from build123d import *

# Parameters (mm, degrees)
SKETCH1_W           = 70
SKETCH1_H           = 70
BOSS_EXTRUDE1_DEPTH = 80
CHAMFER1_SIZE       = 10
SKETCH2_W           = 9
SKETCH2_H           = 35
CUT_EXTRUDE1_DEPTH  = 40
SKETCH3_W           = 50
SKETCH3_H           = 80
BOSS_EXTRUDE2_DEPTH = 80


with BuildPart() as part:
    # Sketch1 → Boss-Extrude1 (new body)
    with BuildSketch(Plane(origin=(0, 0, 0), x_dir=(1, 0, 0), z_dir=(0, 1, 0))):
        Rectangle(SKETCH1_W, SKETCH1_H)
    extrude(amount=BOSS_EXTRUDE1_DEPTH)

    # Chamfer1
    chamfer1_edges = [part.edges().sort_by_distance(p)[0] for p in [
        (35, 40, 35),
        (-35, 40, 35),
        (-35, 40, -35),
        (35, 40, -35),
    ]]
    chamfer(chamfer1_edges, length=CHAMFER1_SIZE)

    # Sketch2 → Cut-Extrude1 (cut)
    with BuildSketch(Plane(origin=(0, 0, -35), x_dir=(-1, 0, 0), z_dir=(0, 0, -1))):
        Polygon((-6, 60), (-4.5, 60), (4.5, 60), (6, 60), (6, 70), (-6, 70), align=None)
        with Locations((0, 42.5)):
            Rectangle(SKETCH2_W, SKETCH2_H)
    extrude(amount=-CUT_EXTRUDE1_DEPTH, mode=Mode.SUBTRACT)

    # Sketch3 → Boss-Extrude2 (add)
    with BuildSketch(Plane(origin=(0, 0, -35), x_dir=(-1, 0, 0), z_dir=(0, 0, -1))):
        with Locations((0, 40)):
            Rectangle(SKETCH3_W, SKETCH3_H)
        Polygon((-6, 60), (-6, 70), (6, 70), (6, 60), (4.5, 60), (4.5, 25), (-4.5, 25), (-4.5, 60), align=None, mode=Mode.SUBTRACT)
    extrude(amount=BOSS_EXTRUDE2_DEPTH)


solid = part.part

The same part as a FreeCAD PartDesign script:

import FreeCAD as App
import Part
import Sketcher
from FreeCAD import Vector
Q = App.Units.Quantity


def edges_at(feature, points):
    """Names of the edges that pass closest to the given points."""
    edges = feature.Shape.Edges
    near = lambda p: min(range(len(edges)), key=lambda i: edges[i].distToShape(Part.Vertex(*p))[0])
    return sorted({f"Edge{near(p) + 1}" for p in points})


def add_polygon(sketch, points):
    """Adds a closed chain of lines whose ends are joined by coincident constraints."""
    first, n = sketch.GeometryCount, len(points)
    for a, b in zip(points, points[1:] + points[:1]):
        sketch.addGeometry(Part.LineSegment(App.Vector(*a, 0), App.Vector(*b, 0)), False)
    for i in range(n):
        sketch.addConstraint(Sketcher.Constraint("Coincident", first + i, 2, first + (i + 1) % n, 1))

doc = App.newDocument("Part")
body = doc.addObject("PartDesign::Body", "Body")

# Sketch on XZ plane
sketch1 = doc.addObject("Sketcher::SketchObject", "Sketch")
body.addObject(sketch1)
sketch1.AttachmentSupport = (doc.XZ_Plane, [""])
sketch1.MapMode = "FlatFace"
add_polygon(sketch1, [(-35, -35), (-35, 35), (35, 35), (35, -35)])  # lines 0-3
sketch1.addConstraint([
    Sketcher.Constraint("Vertical", 0),
    Sketcher.Constraint("Horizontal", 1),
    Sketcher.Constraint("Vertical", 2),
    Sketcher.Constraint("Horizontal", 3),
    Sketcher.Constraint("Symmetric", 0, 2, 2, 2, -1, 1),
    Sketcher.Constraint("Equal", 3, 0),
    Sketcher.Constraint("DistanceX", 1, 1, 1, 2, Q("70 mm")),
])
pad1 = doc.addObject("PartDesign::Pad", "Pad")
body.addObject(pad1)
pad1.Profile = sketch1
pad1.Length = 80
pad1.Reversed = True
doc.recompute()

chamfer = doc.addObject("PartDesign::Chamfer", "Chamfer")
body.addObject(chamfer)
chamfer.Base = (pad1, edges_at(pad1, [
    (35, 40, 35),
    (-35, 40, 35),
    (-35, 40, -35),
    (35, 40, -35),
]))
chamfer.Size = 10

# Sketch on XY plane
sketch2 = doc.addObject("Sketcher::SketchObject", "Sketch001")
body.addObject(sketch2)
sketch2.AttachmentSupport = (doc.XY_Plane, [""])
sketch2.MapMode = "FlatFace"
sketch2.AttachmentOffset = App.Placement(Vector(0, 0, -35), App.Rotation())
add_polygon(sketch2, [(6, 60), (4.5, 60), (4.5, 25), (-4.5, 25), (-4.5, 60), (-6, 60), (-6, 70), (6, 70)])  # lines 0-7
sketch2.addConstraint([
    Sketcher.Constraint("Horizontal", 0),
    Sketcher.Constraint("Vertical", 1),
    Sketcher.Constraint("Horizontal", 2),
    Sketcher.Constraint("Vertical", 3),
    Sketcher.Constraint("Horizontal", 4),
    Sketcher.Constraint("Vertical", 5),
    Sketcher.Constraint("Horizontal", 6),
    Sketcher.Constraint("Vertical", 7),
    Sketcher.Constraint("Symmetric", 0, 2, 3, 2, -2),
    Sketcher.Constraint("Equal", 0, 4),
    Sketcher.Constraint("DistanceX", 2, 2, 2, 1, Q("9 mm")),
    Sketcher.Constraint("DistanceX", 6, 1, 6, 2, Q("12 mm")),
    Sketcher.Constraint("DistanceY", 1, 2, 1, 1, Q("35 mm")),
    Sketcher.Constraint("DistanceY", 5, 1, 5, 2, Q("10 mm")),
    Sketcher.Constraint("DistanceY", -1, 1, 0, 2, Q("60 mm")),
])
pocket1 = doc.addObject("PartDesign::Pocket", "Pocket")
body.addObject(pocket1)
pocket1.Profile = sketch2
pocket1.Length = 40
pocket1.Reversed = True

# Sketch on XY plane
sketch3 = doc.addObject("Sketcher::SketchObject", "Sketch002")
body.addObject(sketch3)
sketch3.AttachmentSupport = (doc.XY_Plane, [""])
sketch3.MapMode = "FlatFace"
sketch3.AttachmentOffset = App.Placement(Vector(0, 0, -35), App.Rotation())
add_polygon(sketch3, [(25, 80), (25, 0), (-25, 0), (-25, 80)])  # lines 0-3
add_polygon(sketch3, [(4.5, 60), (6, 60), (6, 70), (-6, 70), (-6, 60), (-4.5, 60), (-4.5, 25), (4.5, 25)])  # lines 4-11
sketch3.addConstraint([
    Sketcher.Constraint("Vertical", 0),
    Sketcher.Constraint("Horizontal", 1),
    Sketcher.Constraint("Vertical", 2),
    Sketcher.Constraint("Horizontal", 3),
    Sketcher.Constraint("Horizontal", 4),
    Sketcher.Constraint("Vertical", 5),
    Sketcher.Constraint("Horizontal", 6),
    Sketcher.Constraint("Vertical", 7),
    Sketcher.Constraint("Horizontal", 8),
    Sketcher.Constraint("Vertical", 9),
    Sketcher.Constraint("Horizontal", 10),
    Sketcher.Constraint("Vertical", 11),
    Sketcher.Constraint("Symmetric", 0, 2, 1, 2, -1, 1),
    Sketcher.Constraint("Symmetric", 4, 2, 7, 2, -2),
    Sketcher.Constraint("Equal", 4, 8),
    Sketcher.Constraint("DistanceX", 1, 2, 1, 1, Q("50 mm")),
    Sketcher.Constraint("DistanceX", 6, 2, 6, 1, Q("12 mm")),
    Sketcher.Constraint("DistanceX", 10, 1, 10, 2, Q("9 mm")),
    Sketcher.Constraint("DistanceY", 0, 2, 0, 1, Q("80 mm")),
    Sketcher.Constraint("DistanceY", 5, 1, 5, 2, Q("10 mm")),
    Sketcher.Constraint("DistanceY", 9, 2, 9, 1, Q("35 mm")),
    Sketcher.Constraint("DistanceY", -1, 1, 4, 2, Q("60 mm")),
])
pad2 = doc.addObject("PartDesign::Pad", "Pad001")
body.addObject(pad2)
pad2.Profile = sketch3
pad2.Length = 80
pad2.Reversed = True

doc.recompute()
